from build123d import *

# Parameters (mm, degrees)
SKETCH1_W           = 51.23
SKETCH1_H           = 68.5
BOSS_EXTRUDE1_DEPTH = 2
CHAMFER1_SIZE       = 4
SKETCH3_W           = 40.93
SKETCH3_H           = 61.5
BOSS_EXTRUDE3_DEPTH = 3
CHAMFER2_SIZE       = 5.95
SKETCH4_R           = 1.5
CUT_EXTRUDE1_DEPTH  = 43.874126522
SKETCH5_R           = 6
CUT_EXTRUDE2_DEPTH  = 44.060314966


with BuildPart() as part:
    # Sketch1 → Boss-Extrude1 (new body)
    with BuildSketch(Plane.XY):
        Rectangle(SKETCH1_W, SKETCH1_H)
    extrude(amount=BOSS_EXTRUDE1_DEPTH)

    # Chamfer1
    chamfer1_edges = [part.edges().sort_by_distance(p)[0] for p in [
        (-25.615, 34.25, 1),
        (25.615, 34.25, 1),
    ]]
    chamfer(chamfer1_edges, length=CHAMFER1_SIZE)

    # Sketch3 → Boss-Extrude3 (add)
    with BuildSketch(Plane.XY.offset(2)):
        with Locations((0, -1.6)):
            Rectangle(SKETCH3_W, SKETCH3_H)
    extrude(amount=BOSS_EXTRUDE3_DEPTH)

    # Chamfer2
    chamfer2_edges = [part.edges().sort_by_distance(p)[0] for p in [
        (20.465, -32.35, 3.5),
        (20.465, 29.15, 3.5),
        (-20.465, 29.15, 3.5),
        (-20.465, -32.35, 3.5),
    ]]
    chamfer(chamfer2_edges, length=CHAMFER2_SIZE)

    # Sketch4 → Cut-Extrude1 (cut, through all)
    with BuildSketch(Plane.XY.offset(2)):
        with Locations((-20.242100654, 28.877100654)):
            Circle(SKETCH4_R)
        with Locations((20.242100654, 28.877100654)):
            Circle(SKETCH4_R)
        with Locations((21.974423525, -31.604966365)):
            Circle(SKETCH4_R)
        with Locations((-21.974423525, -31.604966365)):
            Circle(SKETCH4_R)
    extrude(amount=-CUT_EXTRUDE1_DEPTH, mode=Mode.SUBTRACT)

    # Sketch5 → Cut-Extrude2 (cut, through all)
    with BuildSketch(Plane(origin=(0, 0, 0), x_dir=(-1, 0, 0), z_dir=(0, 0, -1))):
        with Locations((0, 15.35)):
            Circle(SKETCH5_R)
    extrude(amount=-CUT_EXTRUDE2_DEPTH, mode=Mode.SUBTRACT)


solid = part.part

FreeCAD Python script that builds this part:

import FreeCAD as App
import Part
import Sketcher
Q = App.Units.Quantity


def edges_at(feature, points):
    """Names of the edges that pass closest to the given points."""
    edges = feature.Shape.Edges
    near = lambda p: min(range(len(edges)), key=lambda i: edges[i].distToShape(Part.Vertex(*p))[0])
    return sorted({f"Edge{near(p) + 1}" for p in points})


def add_polygon(sketch, points):
    """Adds a closed chain of lines whose ends are joined by coincident constraints."""
    first, n = sketch.GeometryCount, len(points)
    for a, b in zip(points, points[1:] + points[:1]):
        sketch.addGeometry(Part.LineSegment(App.Vector(*a, 0), App.Vector(*b, 0)), False)
    for i in range(n):
        sketch.addConstraint(Sketcher.Constraint("Coincident", first + i, 2, first + (i + 1) % n, 1))

doc = App.newDocument("Part")
params = doc.addObject("Spreadsheet::Sheet", "Params")
for row, (alias, value) in enumerate([
    ("sketch1_height", "68.5 mm"),
    ("sketch1_width", "51.23 mm"),
    ("pad1_length", "2 mm"),
    ("chamfer_size", "4 mm"),
    ("sketch2_height", "61.5 mm"),
    ("sketch2_width", "40.93 mm"),
    ("pad2_length", "3 mm"),
    ("chamfer2_size", "5.95 mm"),
    ("sketch3_diameter", "3 mm"),
    ("sketch4_diameter", "12 mm"),
], start=1):
    params.set(f"A{row}", alias)
    params.set(f"B{row}", "=" + value)
    params.setAlias(f"B{row}", alias)

body = doc.addObject("PartDesign::Body", "Body")

# Sketch on XY plane
sketch1 = body.newObject("Sketcher::SketchObject", "Sketch")
sketch1.AttachmentSupport = (doc.getObject("XY_Plane"), [""])
sketch1.MapMode = "FlatFace"
add_polygon(sketch1, [(-26, 34), (-26, -34), (26, -34), (26, 34)])  # lines 0-3
sketch1.addConstraint([
    Sketcher.Constraint("Vertical", 0),
    Sketcher.Constraint("Horizontal", 1),
    Sketcher.Constraint("Vertical", 2),
    Sketcher.Constraint("Horizontal", 3),
    Sketcher.Constraint("Symmetric", 0, 2, 2, 2, -1, 1),
    Sketcher.Constraint("DistanceY", 0, 2, 0, 1, Q("68.5 mm")),
    Sketcher.Constraint("DistanceX", 1, 1, 1, 2, Q("51.23 mm")),
])
sketch1.setExpression("Constraints[9]", "Params.sketch1_height")
sketch1.setExpression("Constraints[10]", "Params.sketch1_width")
pad1 = body.newObject("PartDesign::Pad", "Pad")
pad1.Profile = sketch1
pad1.setExpression("Length", "Params.pad1_length")
doc.recompute()

chamfer = body.newObject("PartDesign::Chamfer", "Chamfer")
chamfer.Base = (pad1, edges_at(pad1, [(-25.615, 34.25, 1), (25.615, 34.25, 1)]))
chamfer.setExpression("Size", "Params.chamfer_size")

# Sketch on XY plane
sketch2 = body.newObject("Sketcher::SketchObject", "Sketch001")
sketch2.AttachmentSupport = (doc.getObject("XY_Plane"), [""])
sketch2.MapMode = "FlatFace"
sketch2.AttachmentOffset = App.Placement(App.Vector(0, 0, 2), App.Rotation())
add_polygon(sketch2, [(-20, 29), (-20, -32), (20, -32), (20, 29)])  # lines 0-3
sketch2.addConstraint([
    Sketcher.Constraint("Vertical", 0),
    Sketcher.Constraint("Horizontal", 1),
    Sketcher.Constraint("Vertical", 2),
    Sketcher.Constraint("Horizontal", 3),
    Sketcher.Constraint("DistanceY", 0, 2, 0, 1, Q("61.5 mm")),
    Sketcher.Constraint("DistanceX", 1, 1, 1, 2, Q("40.93 mm")),
    Sketcher.Constraint("DistanceY", 0, 2, -1, 1, Q("32.35 mm")),
    Sketcher.Constraint("DistanceX", 0, 2, -1, 1, Q("20.465 mm")),
])
sketch2.setExpression("Constraints[8]", "Params.sketch2_height")
sketch2.setExpression("Constraints[9]", "Params.sketch2_width")
pad2 = body.newObject("PartDesign::Pad", "Pad001")
pad2.Profile = sketch2
pad2.setExpression("Length", "Params.pad2_length")
doc.recompute()

chamfer2 = body.newObject("PartDesign::Chamfer", "Chamfer001")
chamfer2.Base = (pad2, edges_at(pad2, [
    (20.465, -32.35, 3.5),
    (20.465, 29.15, 3.5),
    (-20.465, 29.15, 3.5),
    (-20.465, -32.35, 3.5),
]))
chamfer2.setExpression("Size", "Params.chamfer2_size")

# Sketch on XY plane
sketch3 = body.newObject("Sketcher::SketchObject", "Sketch002")
sketch3.AttachmentSupport = (doc.getObject("XY_Plane"), [""])
sketch3.MapMode = "FlatFace"
sketch3.AttachmentOffset = App.Placement(App.Vector(0, 0, 2), App.Rotation())
sketch3.addGeometry([
    Part.Circle(App.Vector(-20.2, 28.9, 0), App.Vector(0, 0, 1), 1.5),
    Part.Circle(App.Vector(20.2, 28.9, 0), App.Vector(0, 0, 1), 1.5),
    Part.Circle(App.Vector(22, -31.6, 0), App.Vector(0, 0, 1), 1.5),
    Part.Circle(App.Vector(-22, -31.6, 0), App.Vector(0, 0, 1), 1.5),
], False)
sketch3.addConstraint([
    Sketcher.Constraint("Equal", 0, 1),
    Sketcher.Constraint("Equal", 1, 2),
    Sketcher.Constraint("Equal", 2, 3),
    Sketcher.Constraint("Symmetric", 0, 3, 1, 3, -2),
    Sketcher.Constraint("Symmetric", 2, 3, 3, 3, -2),
    Sketcher.Constraint("Diameter", 0, Q("3 mm")),
    Sketcher.Constraint("DistanceX", 0, 3, -1, 1, Q("20.242101 mm")),
    Sketcher.Constraint("DistanceY", -1, 1, 0, 3, Q("28.877101 mm")),
    Sketcher.Constraint("DistanceX", -1, 1, 2, 3, Q("21.974424 mm")),
    Sketcher.Constraint("DistanceY", 2, 3, -1, 1, Q("31.604966 mm")),
])
sketch3.setExpression("Constraints[5]", "Params.sketch3_diameter")
pocket1 = body.newObject("PartDesign::Pocket", "Pocket")
pocket1.Profile = sketch3
pocket1.Type = "ThroughAll"

# Sketch on XY plane
sketch4 = body.newObject("Sketcher::SketchObject", "Sketch003")
sketch4.AttachmentSupport = (doc.getObject("XY_Plane"), [""])
sketch4.MapMode = "FlatFace"
sketch4.addGeometry(Part.Circle(App.Vector(0, 15, 0), App.Vector(0, 0, 1), 6), False)
sketch4.addConstraint([
    Sketcher.Constraint("PointOnObject", 0, 3, -2),
    Sketcher.Constraint("Diameter", 0, Q("12 mm")),
    Sketcher.Constraint("DistanceY", -1, 1, 0, 3, Q("15.35 mm")),
])
sketch4.setExpression("Constraints[1]", "Params.sketch4_diameter")
pocket2 = body.newObject("PartDesign::Pocket", "Pocket001")
pocket2.Profile = sketch4
pocket2.Type = "ThroughAll"
pocket2.Reversed = True

doc.recompute()
